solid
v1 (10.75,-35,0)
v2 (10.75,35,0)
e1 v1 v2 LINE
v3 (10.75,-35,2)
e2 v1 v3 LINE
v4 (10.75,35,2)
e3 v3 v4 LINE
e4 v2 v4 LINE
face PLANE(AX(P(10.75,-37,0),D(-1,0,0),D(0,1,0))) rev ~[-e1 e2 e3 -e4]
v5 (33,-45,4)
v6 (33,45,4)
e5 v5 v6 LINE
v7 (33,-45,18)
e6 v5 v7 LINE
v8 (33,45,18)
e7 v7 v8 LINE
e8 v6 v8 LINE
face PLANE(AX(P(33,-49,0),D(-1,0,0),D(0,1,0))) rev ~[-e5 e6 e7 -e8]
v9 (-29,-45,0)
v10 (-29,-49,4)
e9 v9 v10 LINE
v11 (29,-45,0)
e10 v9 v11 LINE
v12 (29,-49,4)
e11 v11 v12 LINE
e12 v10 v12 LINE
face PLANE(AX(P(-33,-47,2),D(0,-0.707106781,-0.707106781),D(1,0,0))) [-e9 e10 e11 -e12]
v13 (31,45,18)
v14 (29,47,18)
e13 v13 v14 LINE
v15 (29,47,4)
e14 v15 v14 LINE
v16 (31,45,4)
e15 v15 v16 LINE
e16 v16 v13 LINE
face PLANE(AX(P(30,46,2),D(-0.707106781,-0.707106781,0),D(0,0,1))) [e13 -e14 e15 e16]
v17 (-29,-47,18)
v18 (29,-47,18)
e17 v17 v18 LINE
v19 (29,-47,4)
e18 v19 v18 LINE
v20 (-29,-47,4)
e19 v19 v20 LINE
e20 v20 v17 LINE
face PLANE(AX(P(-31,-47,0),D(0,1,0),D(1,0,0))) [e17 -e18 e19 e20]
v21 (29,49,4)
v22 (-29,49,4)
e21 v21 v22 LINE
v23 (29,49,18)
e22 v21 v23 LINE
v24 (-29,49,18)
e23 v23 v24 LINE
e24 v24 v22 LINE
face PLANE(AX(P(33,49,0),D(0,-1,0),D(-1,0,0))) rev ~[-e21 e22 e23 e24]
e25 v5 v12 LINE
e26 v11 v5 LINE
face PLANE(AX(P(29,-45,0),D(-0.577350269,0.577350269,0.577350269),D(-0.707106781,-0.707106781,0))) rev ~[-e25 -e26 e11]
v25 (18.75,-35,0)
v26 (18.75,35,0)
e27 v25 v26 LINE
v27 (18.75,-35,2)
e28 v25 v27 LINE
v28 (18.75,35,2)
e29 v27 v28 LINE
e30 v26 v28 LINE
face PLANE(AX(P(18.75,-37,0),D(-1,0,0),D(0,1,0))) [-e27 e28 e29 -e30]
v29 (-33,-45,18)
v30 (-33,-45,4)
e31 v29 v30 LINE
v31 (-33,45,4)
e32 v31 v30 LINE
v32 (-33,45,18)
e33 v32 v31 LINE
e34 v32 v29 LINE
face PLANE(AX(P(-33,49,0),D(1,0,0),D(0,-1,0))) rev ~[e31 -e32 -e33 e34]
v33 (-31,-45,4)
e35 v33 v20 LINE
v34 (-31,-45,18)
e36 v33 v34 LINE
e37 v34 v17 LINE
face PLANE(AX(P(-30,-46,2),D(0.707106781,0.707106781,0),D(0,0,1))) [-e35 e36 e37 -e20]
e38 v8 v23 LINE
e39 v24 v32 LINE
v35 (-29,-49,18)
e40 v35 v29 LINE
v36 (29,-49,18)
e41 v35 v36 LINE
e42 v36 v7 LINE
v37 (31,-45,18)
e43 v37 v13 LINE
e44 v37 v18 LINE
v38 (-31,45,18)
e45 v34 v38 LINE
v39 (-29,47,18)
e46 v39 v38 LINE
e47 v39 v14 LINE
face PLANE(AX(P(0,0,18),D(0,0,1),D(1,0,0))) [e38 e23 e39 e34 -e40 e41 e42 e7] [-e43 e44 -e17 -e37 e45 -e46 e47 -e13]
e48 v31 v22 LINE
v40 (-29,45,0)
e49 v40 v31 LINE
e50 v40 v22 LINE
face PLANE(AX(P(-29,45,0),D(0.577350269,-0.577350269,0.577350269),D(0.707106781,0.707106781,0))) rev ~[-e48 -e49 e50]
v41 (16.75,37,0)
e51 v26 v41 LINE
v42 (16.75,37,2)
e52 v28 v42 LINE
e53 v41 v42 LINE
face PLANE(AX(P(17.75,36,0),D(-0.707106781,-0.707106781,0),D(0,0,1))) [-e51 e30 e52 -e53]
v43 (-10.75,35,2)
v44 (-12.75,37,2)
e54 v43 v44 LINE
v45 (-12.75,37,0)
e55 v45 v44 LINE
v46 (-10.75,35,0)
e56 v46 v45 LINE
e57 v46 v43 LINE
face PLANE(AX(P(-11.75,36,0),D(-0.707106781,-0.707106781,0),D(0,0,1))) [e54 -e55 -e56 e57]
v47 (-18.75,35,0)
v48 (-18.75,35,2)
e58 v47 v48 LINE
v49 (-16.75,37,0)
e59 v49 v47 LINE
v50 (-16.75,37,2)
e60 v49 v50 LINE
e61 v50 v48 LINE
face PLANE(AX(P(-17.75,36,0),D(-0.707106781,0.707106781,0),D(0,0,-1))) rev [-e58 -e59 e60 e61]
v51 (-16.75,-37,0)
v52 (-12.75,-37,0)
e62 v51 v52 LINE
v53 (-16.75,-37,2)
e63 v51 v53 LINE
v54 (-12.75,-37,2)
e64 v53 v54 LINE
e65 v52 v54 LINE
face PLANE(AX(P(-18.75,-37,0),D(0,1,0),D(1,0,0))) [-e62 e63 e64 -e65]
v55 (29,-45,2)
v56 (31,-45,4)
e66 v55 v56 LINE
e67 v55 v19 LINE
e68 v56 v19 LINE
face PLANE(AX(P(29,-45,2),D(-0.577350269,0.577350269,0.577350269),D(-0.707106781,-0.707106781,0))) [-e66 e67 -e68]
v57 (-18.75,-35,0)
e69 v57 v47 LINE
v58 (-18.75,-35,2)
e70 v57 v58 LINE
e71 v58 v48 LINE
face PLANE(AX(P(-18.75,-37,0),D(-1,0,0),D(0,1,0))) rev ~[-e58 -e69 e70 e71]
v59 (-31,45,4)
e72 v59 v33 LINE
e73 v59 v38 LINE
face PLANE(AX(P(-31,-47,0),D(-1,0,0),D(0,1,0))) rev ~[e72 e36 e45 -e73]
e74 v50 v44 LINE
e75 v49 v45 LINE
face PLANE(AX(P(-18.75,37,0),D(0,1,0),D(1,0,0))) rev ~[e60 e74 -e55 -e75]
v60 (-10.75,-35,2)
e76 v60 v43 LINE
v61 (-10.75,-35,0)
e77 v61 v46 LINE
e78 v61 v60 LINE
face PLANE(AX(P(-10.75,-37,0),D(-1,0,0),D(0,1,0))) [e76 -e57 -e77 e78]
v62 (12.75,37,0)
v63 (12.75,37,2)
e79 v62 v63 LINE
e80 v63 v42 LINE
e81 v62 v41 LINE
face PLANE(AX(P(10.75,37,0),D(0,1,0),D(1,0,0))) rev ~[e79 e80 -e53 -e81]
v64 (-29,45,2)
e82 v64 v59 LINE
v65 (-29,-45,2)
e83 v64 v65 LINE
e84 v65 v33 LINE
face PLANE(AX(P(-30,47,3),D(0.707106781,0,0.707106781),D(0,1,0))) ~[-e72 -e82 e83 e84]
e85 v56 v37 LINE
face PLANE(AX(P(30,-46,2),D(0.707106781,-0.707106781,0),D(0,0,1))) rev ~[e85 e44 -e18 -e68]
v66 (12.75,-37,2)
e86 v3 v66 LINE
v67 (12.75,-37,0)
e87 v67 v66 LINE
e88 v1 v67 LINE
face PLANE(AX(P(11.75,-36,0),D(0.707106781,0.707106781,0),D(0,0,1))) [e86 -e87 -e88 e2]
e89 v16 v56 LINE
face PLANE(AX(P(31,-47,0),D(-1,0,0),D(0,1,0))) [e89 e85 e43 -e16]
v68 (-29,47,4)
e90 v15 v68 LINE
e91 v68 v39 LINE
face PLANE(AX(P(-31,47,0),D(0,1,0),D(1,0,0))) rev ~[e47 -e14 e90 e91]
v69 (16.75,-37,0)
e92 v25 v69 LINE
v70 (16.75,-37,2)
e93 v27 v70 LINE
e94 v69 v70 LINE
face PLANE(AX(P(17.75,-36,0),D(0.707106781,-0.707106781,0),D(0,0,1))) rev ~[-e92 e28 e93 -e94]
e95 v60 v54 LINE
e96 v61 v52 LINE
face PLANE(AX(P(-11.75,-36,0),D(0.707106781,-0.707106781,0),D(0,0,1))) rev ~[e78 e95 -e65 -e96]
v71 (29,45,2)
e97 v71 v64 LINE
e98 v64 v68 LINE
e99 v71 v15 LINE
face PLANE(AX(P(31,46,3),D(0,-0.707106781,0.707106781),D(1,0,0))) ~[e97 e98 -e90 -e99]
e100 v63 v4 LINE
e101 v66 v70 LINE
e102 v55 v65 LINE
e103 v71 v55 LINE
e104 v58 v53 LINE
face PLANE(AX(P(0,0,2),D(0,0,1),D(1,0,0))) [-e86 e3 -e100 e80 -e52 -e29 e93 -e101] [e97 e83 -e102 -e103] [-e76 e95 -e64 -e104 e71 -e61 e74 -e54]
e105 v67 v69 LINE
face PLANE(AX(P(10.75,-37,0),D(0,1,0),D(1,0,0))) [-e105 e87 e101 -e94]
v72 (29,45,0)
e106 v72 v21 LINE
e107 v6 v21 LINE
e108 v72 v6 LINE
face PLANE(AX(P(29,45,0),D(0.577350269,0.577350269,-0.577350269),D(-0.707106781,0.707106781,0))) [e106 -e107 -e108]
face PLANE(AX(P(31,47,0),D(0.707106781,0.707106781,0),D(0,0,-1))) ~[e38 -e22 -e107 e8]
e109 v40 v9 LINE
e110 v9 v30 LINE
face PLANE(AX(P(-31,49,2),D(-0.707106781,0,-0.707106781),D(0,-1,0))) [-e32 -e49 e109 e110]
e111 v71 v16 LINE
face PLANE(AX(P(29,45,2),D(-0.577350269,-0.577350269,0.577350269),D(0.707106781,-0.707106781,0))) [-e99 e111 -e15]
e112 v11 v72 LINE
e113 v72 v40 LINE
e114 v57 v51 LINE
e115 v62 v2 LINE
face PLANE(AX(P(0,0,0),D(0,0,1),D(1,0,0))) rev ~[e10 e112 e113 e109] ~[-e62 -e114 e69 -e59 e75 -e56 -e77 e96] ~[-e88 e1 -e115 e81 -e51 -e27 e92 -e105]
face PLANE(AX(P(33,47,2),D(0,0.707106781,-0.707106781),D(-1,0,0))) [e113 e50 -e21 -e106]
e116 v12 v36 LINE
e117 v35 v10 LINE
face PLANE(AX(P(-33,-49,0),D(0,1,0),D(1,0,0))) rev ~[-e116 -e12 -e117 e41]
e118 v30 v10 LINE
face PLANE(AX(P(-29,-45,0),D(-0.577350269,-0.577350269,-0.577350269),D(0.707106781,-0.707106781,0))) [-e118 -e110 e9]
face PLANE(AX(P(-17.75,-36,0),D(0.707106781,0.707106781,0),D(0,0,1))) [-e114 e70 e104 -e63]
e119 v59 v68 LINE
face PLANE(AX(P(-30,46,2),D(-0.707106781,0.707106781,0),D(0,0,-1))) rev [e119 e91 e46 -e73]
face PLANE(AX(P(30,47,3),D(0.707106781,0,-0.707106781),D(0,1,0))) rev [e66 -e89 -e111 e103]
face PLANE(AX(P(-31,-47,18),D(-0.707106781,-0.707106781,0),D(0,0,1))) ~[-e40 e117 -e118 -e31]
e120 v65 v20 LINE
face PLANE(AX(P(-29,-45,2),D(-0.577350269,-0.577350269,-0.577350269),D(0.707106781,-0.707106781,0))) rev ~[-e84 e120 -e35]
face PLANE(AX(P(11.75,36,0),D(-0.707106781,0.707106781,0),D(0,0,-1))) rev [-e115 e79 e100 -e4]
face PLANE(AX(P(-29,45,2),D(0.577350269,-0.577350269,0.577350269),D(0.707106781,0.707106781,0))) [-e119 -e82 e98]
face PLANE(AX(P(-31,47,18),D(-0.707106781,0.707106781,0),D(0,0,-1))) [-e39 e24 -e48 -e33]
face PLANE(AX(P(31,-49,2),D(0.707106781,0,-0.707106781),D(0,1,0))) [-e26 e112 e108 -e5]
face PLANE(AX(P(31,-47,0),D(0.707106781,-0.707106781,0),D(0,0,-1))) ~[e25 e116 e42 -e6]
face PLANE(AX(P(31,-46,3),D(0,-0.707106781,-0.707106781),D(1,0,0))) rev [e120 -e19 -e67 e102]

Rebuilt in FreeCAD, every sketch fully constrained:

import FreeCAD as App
import Part
import Sketcher
from FreeCAD import Vector
Q = App.Units.Quantity


def edges_at(feature, points):
    """Names of the edges that pass closest to the given points."""
    edges = feature.Shape.Edges
    near = lambda p: min(range(len(edges)), key=lambda i: edges[i].distToShape(Part.Vertex(*p))[0])
    return sorted({f"Edge{near(p) + 1}" for p in points})


def add_polygon(sketch, points):
    """Adds a closed chain of lines whose ends are joined by coincident constraints."""
    first, n = sketch.GeometryCount, len(points)
    for a, b in zip(points, points[1:] + points[:1]):
        sketch.addGeometry(Part.LineSegment(App.Vector(*a, 0), App.Vector(*b, 0)), False)
    for i in range(n):
        sketch.addConstraint(Sketcher.Constraint("Coincident", first + i, 2, first + (i + 1) % n, 1))

doc = App.newDocument("Part")
body = doc.addObject("PartDesign::Body", "Body")

sketch1 = body.newObject("Sketcher::SketchObject", "Sketch")
sketch1.AttachmentSupport = (doc.getObject("XY_Plane"), [""])
sketch1.MapMode = "FlatFace"
add_polygon(sketch1, [(-33, -49), (33, -49), (33, 49), (-33, 49)])
add_polygon(sketch1, [(-10.75, -37), (-18.75, -37), (-18.75, 37), (-10.75, 37)])
add_polygon(sketch1, [(18.75, -37), (10.75, -37), (10.75, 37), (18.75, 37)])
sketch1.addConstraint([
    Sketcher.Constraint("Horizontal", 0),
    Sketcher.Constraint("Vertical", 1),
    Sketcher.Constraint("Horizontal", 2),
    Sketcher.Constraint("Vertical", 3),
    Sketcher.Constraint("Horizontal", 4),
    Sketcher.Constraint("Vertical", 5),
    Sketcher.Constraint("Horizontal", 6),
    Sketcher.Constraint("Vertical", 7),
    Sketcher.Constraint("Horizontal", 8),
    Sketcher.Constraint("Vertical", 9),
    Sketcher.Constraint("Horizontal", 10),
    Sketcher.Constraint("Vertical", 11),
    Sketcher.Constraint("Symmetric", 0, 2, 2, 2, -1, 1),
    Sketcher.Constraint("Symmetric", 6, 2, 8, 2, -1, 1),
    Sketcher.Constraint("Symmetric", 4, 2, 10, 2, -1, 1),
    Sketcher.Constraint("Horizontal", 7, 2, 8, 2),
    Sketcher.Constraint("DistanceX", 0, 1, 0, 2, Q("66 mm")),
    Sketcher.Constraint("DistanceX", 4, 2, 4, 1, Q("8 mm")),
    Sketcher.Constraint("DistanceY", 1, 1, 1, 2, Q("98 mm")),
    Sketcher.Constraint("DistanceY", 5, 1, 5, 2, Q("74 mm")),
    Sketcher.Constraint("DistanceX", 7, 2, 8, 2, Q("21.5 mm")),
])
pad1 = body.newObject("PartDesign::Pad", "Pad")
pad1.Profile = sketch1
pad1.Length = 2

sketch2 = body.newObject("Sketcher::SketchObject", "Sketch001")
sketch2.AttachmentSupport = (doc.getObject("XY_Plane"), [""])
sketch2.MapMode = "FlatFace"
add_polygon(sketch2, [(-33, -49), (33, -49), (33, 49), (-33, 49)])
add_polygon(sketch2, [(31, -47), (-31, -47), (-31, 47), (31, 47)])
sketch2.addConstraint([
    Sketcher.Constraint("Horizontal", 0),
    Sketcher.Constraint("Vertical", 1),
    Sketcher.Constraint("Horizontal", 2),
    Sketcher.Constraint("Vertical", 3),
    Sketcher.Constraint("Horizontal", 4),
    Sketcher.Constraint("Vertical", 5),
    Sketcher.Constraint("Horizontal", 6),
    Sketcher.Constraint("Vertical", 7),
    Sketcher.Constraint("Symmetric", 0, 2, 2, 2, -1, 1),
    Sketcher.Constraint("Symmetric", 4, 2, 6, 2, -1, 1),
    Sketcher.Constraint("DistanceX", 0, 1, 0, 2, Q("66 mm")),
    Sketcher.Constraint("DistanceX", 4, 2, 4, 1, Q("62 mm")),
    Sketcher.Constraint("DistanceY", 1, 1, 1, 2, Q("98 mm")),
    Sketcher.Constraint("DistanceY", 5, 1, 5, 2, Q("94 mm")),
])
pad2 = body.newObject("PartDesign::Pad", "Pad001")
pad2.Profile = sketch2
pad2.Length = 18
doc.recompute()

chamfer = body.newObject("PartDesign::Chamfer", "Chamfer")
chamfer.Base = (pad2, edges_at(pad2, [
    (31, 47, 10),
    (-31, 47, 10),
    (-31, -47, 10),
    (31, -47, 10),
    (-18.75, 37, 1),
    (10.75, 37, 1),
    (-10.75, 37, 1),
    (18.75, 37, 1),
    (-10.75, -37, 1),
    (18.75, -37, 1),
    (10.75, -37, 1),
    (-18.75, -37, 1),
    (-31, 0, 2),
    (0, 47, 2),
    (31, 0, 2),
    (0, -47, 2),
]))
chamfer.Size = 2
doc.recompute()

chamfer2 = body.newObject("PartDesign::Chamfer", "Chamfer001")
chamfer2.Base = (chamfer, edges_at(chamfer, [
    (-33, 49, 9),
    (33, 49, 9),
    (33, -49, 9),
    (-33, -49, 9),
    (-33, 0, 0),
    (33, 0, 0),
    (0, -49, 0),
    (0, 49, 0),
]))
chamfer2.Size = 4

doc.recompute()
